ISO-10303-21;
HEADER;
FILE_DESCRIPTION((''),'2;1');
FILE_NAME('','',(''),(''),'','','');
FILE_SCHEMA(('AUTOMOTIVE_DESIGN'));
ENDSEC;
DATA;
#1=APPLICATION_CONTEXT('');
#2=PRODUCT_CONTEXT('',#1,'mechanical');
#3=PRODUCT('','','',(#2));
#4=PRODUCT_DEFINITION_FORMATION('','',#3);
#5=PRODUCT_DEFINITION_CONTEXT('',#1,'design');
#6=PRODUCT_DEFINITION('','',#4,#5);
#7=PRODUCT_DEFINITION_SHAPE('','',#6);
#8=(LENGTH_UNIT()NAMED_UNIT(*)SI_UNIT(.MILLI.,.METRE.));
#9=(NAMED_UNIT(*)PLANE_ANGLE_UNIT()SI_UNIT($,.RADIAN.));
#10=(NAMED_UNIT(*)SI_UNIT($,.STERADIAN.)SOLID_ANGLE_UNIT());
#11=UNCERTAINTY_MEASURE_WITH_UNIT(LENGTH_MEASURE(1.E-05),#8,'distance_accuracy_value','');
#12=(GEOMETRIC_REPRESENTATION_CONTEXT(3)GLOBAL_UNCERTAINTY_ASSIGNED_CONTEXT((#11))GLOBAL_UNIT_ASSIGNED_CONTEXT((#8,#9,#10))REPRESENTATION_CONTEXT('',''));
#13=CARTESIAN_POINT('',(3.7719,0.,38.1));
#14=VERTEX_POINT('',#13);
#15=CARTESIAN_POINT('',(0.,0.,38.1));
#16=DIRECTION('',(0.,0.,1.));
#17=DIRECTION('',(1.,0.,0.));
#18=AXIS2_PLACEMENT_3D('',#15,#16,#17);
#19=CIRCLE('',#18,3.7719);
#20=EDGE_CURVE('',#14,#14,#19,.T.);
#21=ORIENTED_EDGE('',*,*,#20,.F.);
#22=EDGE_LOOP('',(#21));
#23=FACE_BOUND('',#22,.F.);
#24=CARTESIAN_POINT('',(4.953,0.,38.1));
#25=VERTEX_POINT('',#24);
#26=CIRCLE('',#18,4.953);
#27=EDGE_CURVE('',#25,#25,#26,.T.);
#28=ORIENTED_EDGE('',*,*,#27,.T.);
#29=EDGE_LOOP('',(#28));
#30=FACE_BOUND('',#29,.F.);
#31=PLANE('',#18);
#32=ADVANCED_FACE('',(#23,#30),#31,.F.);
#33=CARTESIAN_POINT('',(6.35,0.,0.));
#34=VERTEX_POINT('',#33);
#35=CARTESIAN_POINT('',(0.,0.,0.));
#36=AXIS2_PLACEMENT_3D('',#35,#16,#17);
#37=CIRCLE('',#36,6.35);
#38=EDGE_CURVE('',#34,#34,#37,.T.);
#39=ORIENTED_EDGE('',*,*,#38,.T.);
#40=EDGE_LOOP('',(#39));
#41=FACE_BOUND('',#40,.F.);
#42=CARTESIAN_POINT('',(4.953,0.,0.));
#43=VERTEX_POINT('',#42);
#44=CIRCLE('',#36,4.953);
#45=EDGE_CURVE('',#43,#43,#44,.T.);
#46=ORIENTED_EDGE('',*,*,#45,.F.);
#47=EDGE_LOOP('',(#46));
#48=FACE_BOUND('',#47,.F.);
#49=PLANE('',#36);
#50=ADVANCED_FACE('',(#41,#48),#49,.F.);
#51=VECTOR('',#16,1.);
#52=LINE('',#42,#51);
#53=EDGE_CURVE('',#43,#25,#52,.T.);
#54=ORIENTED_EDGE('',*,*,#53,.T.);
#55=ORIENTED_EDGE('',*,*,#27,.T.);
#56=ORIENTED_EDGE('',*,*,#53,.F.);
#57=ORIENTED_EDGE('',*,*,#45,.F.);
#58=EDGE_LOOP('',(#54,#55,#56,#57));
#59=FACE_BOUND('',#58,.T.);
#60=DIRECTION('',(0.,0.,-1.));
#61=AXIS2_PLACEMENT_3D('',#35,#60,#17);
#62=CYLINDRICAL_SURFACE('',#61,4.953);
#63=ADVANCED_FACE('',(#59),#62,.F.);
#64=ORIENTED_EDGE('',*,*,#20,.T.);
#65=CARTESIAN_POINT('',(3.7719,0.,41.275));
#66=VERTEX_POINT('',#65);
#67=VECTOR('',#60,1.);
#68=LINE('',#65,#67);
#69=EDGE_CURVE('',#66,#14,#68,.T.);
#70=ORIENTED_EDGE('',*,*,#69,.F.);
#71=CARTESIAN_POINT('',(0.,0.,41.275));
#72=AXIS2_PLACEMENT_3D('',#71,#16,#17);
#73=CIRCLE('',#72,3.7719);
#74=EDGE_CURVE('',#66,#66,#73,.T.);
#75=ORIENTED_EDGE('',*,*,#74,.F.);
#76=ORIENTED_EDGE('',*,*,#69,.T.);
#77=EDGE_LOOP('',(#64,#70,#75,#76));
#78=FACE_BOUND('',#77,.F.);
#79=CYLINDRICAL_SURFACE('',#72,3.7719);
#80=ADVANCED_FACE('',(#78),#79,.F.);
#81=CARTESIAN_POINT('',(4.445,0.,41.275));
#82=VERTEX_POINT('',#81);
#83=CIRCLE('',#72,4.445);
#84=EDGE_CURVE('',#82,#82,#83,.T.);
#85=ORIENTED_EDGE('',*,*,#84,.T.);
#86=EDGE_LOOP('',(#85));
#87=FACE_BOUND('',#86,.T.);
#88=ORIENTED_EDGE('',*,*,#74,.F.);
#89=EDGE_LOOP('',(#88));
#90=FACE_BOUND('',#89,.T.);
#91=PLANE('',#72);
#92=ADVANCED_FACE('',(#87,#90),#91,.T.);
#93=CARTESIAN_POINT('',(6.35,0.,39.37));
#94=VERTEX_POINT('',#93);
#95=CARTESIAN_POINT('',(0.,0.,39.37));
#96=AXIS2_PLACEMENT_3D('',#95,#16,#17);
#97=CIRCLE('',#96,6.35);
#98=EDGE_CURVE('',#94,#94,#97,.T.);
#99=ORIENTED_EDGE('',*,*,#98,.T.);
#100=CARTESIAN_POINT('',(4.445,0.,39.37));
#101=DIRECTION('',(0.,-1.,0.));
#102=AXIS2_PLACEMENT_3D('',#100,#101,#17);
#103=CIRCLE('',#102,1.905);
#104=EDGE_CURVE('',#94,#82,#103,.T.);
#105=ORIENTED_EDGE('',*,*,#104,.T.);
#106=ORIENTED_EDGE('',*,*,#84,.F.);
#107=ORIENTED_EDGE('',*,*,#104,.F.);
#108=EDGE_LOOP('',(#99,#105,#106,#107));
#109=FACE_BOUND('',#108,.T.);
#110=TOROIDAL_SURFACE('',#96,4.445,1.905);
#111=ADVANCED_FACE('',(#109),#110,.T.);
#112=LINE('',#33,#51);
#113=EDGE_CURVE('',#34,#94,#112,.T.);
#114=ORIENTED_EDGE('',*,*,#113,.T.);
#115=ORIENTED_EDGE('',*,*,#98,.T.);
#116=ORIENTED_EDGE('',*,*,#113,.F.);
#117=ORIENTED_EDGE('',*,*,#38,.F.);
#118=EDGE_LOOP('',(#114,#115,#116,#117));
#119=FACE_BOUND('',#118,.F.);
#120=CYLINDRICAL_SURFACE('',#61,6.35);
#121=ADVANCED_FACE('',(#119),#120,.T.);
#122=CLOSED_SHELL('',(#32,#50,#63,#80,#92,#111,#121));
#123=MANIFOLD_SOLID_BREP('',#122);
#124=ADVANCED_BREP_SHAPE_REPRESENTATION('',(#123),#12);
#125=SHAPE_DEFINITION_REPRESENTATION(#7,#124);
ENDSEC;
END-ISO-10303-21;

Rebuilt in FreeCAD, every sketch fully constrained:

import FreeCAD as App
import Part
import Sketcher
from FreeCAD import Vector
Q = App.Units.Quantity


def edges_at(feature, points):
    """Names of the edges that pass closest to the given points."""
    edges = feature.Shape.Edges
    near = lambda p: min(range(len(edges)), key=lambda i: edges[i].distToShape(Part.Vertex(*p))[0])
    return sorted({f"Edge{near(p) + 1}" for p in points})

doc = App.newDocument("Part")
body = doc.addObject("PartDesign::Body", "Body")

sketch1 = doc.addObject("Sketcher::SketchObject", "Sketch")
body.addObject(sketch1)
sketch1.AttachmentSupport = (doc.XY_Plane, [""])
sketch1.MapMode = "FlatFace"
sketch1.addGeometry(Part.Circle(Vector(0, 0, 0), Vector(0, 0, 1), 6), False)
sketch1.addConstraint([
    Sketcher.Constraint("Coincident", 0, 3, -1, 1),
    Sketcher.Constraint("Diameter", 0, Q("0.5 in")),
])
pad1 = doc.addObject("PartDesign::Pad", "Pad")
body.addObject(pad1)
pad1.Profile = sketch1
pad1.Length = Q("1.625 in")

sketch2 = doc.addObject("Sketcher::SketchObject", "Sketch001")
body.addObject(sketch2)
sketch2.AttachmentSupport = (doc.XY_Plane, [""])
sketch2.MapMode = "FlatFace"
sketch2.addGeometry(Part.Circle(Vector(0, 0, 0), Vector(0, 0, 1), 5), False)
sketch2.addConstraint([
    Sketcher.Constraint("Coincident", 0, 3, -1, 1),
    Sketcher.Constraint("Diameter", 0, Q("0.39 in")),
])
pocket1 = doc.addObject("PartDesign::Pocket", "Pocket")
body.addObject(pocket1)
pocket1.Profile = sketch2
pocket1.Length = Q("1.5 in")
pocket1.Reversed = True

sketch3 = doc.addObject("Sketcher::SketchObject", "Sketch002")
body.addObject(sketch3)
sketch3.AttachmentSupport = (doc.XY_Plane, [""])
sketch3.MapMode = "FlatFace"
sketch3.AttachmentOffset = App.Placement(Vector(0, 0, 1.625 * 25.4), App.Rotation())
sketch3.addGeometry(Part.Circle(Vector(0, 0, 0), Vector(0, 0, 1), 3.8), False)
sketch3.addConstraint([
    Sketcher.Constraint("Coincident", 0, 3, -1, 1),
    Sketcher.Constraint("Diameter", 0, Q("0.297 in")),
])
pocket2 = doc.addObject("PartDesign::Pocket", "Pocket001")
body.addObject(pocket2)
pocket2.Profile = sketch3
pocket2.Type = "ThroughAll"
doc.recompute()

fillet = doc.addObject("PartDesign::Fillet", "Fillet")
body.addObject(fillet)
fillet.Base = (pocket2, edges_at(pocket2, [(-6.35, 0, 41.275)]))
fillet.Radius = Q("0.075 in")

doc.recompute()
